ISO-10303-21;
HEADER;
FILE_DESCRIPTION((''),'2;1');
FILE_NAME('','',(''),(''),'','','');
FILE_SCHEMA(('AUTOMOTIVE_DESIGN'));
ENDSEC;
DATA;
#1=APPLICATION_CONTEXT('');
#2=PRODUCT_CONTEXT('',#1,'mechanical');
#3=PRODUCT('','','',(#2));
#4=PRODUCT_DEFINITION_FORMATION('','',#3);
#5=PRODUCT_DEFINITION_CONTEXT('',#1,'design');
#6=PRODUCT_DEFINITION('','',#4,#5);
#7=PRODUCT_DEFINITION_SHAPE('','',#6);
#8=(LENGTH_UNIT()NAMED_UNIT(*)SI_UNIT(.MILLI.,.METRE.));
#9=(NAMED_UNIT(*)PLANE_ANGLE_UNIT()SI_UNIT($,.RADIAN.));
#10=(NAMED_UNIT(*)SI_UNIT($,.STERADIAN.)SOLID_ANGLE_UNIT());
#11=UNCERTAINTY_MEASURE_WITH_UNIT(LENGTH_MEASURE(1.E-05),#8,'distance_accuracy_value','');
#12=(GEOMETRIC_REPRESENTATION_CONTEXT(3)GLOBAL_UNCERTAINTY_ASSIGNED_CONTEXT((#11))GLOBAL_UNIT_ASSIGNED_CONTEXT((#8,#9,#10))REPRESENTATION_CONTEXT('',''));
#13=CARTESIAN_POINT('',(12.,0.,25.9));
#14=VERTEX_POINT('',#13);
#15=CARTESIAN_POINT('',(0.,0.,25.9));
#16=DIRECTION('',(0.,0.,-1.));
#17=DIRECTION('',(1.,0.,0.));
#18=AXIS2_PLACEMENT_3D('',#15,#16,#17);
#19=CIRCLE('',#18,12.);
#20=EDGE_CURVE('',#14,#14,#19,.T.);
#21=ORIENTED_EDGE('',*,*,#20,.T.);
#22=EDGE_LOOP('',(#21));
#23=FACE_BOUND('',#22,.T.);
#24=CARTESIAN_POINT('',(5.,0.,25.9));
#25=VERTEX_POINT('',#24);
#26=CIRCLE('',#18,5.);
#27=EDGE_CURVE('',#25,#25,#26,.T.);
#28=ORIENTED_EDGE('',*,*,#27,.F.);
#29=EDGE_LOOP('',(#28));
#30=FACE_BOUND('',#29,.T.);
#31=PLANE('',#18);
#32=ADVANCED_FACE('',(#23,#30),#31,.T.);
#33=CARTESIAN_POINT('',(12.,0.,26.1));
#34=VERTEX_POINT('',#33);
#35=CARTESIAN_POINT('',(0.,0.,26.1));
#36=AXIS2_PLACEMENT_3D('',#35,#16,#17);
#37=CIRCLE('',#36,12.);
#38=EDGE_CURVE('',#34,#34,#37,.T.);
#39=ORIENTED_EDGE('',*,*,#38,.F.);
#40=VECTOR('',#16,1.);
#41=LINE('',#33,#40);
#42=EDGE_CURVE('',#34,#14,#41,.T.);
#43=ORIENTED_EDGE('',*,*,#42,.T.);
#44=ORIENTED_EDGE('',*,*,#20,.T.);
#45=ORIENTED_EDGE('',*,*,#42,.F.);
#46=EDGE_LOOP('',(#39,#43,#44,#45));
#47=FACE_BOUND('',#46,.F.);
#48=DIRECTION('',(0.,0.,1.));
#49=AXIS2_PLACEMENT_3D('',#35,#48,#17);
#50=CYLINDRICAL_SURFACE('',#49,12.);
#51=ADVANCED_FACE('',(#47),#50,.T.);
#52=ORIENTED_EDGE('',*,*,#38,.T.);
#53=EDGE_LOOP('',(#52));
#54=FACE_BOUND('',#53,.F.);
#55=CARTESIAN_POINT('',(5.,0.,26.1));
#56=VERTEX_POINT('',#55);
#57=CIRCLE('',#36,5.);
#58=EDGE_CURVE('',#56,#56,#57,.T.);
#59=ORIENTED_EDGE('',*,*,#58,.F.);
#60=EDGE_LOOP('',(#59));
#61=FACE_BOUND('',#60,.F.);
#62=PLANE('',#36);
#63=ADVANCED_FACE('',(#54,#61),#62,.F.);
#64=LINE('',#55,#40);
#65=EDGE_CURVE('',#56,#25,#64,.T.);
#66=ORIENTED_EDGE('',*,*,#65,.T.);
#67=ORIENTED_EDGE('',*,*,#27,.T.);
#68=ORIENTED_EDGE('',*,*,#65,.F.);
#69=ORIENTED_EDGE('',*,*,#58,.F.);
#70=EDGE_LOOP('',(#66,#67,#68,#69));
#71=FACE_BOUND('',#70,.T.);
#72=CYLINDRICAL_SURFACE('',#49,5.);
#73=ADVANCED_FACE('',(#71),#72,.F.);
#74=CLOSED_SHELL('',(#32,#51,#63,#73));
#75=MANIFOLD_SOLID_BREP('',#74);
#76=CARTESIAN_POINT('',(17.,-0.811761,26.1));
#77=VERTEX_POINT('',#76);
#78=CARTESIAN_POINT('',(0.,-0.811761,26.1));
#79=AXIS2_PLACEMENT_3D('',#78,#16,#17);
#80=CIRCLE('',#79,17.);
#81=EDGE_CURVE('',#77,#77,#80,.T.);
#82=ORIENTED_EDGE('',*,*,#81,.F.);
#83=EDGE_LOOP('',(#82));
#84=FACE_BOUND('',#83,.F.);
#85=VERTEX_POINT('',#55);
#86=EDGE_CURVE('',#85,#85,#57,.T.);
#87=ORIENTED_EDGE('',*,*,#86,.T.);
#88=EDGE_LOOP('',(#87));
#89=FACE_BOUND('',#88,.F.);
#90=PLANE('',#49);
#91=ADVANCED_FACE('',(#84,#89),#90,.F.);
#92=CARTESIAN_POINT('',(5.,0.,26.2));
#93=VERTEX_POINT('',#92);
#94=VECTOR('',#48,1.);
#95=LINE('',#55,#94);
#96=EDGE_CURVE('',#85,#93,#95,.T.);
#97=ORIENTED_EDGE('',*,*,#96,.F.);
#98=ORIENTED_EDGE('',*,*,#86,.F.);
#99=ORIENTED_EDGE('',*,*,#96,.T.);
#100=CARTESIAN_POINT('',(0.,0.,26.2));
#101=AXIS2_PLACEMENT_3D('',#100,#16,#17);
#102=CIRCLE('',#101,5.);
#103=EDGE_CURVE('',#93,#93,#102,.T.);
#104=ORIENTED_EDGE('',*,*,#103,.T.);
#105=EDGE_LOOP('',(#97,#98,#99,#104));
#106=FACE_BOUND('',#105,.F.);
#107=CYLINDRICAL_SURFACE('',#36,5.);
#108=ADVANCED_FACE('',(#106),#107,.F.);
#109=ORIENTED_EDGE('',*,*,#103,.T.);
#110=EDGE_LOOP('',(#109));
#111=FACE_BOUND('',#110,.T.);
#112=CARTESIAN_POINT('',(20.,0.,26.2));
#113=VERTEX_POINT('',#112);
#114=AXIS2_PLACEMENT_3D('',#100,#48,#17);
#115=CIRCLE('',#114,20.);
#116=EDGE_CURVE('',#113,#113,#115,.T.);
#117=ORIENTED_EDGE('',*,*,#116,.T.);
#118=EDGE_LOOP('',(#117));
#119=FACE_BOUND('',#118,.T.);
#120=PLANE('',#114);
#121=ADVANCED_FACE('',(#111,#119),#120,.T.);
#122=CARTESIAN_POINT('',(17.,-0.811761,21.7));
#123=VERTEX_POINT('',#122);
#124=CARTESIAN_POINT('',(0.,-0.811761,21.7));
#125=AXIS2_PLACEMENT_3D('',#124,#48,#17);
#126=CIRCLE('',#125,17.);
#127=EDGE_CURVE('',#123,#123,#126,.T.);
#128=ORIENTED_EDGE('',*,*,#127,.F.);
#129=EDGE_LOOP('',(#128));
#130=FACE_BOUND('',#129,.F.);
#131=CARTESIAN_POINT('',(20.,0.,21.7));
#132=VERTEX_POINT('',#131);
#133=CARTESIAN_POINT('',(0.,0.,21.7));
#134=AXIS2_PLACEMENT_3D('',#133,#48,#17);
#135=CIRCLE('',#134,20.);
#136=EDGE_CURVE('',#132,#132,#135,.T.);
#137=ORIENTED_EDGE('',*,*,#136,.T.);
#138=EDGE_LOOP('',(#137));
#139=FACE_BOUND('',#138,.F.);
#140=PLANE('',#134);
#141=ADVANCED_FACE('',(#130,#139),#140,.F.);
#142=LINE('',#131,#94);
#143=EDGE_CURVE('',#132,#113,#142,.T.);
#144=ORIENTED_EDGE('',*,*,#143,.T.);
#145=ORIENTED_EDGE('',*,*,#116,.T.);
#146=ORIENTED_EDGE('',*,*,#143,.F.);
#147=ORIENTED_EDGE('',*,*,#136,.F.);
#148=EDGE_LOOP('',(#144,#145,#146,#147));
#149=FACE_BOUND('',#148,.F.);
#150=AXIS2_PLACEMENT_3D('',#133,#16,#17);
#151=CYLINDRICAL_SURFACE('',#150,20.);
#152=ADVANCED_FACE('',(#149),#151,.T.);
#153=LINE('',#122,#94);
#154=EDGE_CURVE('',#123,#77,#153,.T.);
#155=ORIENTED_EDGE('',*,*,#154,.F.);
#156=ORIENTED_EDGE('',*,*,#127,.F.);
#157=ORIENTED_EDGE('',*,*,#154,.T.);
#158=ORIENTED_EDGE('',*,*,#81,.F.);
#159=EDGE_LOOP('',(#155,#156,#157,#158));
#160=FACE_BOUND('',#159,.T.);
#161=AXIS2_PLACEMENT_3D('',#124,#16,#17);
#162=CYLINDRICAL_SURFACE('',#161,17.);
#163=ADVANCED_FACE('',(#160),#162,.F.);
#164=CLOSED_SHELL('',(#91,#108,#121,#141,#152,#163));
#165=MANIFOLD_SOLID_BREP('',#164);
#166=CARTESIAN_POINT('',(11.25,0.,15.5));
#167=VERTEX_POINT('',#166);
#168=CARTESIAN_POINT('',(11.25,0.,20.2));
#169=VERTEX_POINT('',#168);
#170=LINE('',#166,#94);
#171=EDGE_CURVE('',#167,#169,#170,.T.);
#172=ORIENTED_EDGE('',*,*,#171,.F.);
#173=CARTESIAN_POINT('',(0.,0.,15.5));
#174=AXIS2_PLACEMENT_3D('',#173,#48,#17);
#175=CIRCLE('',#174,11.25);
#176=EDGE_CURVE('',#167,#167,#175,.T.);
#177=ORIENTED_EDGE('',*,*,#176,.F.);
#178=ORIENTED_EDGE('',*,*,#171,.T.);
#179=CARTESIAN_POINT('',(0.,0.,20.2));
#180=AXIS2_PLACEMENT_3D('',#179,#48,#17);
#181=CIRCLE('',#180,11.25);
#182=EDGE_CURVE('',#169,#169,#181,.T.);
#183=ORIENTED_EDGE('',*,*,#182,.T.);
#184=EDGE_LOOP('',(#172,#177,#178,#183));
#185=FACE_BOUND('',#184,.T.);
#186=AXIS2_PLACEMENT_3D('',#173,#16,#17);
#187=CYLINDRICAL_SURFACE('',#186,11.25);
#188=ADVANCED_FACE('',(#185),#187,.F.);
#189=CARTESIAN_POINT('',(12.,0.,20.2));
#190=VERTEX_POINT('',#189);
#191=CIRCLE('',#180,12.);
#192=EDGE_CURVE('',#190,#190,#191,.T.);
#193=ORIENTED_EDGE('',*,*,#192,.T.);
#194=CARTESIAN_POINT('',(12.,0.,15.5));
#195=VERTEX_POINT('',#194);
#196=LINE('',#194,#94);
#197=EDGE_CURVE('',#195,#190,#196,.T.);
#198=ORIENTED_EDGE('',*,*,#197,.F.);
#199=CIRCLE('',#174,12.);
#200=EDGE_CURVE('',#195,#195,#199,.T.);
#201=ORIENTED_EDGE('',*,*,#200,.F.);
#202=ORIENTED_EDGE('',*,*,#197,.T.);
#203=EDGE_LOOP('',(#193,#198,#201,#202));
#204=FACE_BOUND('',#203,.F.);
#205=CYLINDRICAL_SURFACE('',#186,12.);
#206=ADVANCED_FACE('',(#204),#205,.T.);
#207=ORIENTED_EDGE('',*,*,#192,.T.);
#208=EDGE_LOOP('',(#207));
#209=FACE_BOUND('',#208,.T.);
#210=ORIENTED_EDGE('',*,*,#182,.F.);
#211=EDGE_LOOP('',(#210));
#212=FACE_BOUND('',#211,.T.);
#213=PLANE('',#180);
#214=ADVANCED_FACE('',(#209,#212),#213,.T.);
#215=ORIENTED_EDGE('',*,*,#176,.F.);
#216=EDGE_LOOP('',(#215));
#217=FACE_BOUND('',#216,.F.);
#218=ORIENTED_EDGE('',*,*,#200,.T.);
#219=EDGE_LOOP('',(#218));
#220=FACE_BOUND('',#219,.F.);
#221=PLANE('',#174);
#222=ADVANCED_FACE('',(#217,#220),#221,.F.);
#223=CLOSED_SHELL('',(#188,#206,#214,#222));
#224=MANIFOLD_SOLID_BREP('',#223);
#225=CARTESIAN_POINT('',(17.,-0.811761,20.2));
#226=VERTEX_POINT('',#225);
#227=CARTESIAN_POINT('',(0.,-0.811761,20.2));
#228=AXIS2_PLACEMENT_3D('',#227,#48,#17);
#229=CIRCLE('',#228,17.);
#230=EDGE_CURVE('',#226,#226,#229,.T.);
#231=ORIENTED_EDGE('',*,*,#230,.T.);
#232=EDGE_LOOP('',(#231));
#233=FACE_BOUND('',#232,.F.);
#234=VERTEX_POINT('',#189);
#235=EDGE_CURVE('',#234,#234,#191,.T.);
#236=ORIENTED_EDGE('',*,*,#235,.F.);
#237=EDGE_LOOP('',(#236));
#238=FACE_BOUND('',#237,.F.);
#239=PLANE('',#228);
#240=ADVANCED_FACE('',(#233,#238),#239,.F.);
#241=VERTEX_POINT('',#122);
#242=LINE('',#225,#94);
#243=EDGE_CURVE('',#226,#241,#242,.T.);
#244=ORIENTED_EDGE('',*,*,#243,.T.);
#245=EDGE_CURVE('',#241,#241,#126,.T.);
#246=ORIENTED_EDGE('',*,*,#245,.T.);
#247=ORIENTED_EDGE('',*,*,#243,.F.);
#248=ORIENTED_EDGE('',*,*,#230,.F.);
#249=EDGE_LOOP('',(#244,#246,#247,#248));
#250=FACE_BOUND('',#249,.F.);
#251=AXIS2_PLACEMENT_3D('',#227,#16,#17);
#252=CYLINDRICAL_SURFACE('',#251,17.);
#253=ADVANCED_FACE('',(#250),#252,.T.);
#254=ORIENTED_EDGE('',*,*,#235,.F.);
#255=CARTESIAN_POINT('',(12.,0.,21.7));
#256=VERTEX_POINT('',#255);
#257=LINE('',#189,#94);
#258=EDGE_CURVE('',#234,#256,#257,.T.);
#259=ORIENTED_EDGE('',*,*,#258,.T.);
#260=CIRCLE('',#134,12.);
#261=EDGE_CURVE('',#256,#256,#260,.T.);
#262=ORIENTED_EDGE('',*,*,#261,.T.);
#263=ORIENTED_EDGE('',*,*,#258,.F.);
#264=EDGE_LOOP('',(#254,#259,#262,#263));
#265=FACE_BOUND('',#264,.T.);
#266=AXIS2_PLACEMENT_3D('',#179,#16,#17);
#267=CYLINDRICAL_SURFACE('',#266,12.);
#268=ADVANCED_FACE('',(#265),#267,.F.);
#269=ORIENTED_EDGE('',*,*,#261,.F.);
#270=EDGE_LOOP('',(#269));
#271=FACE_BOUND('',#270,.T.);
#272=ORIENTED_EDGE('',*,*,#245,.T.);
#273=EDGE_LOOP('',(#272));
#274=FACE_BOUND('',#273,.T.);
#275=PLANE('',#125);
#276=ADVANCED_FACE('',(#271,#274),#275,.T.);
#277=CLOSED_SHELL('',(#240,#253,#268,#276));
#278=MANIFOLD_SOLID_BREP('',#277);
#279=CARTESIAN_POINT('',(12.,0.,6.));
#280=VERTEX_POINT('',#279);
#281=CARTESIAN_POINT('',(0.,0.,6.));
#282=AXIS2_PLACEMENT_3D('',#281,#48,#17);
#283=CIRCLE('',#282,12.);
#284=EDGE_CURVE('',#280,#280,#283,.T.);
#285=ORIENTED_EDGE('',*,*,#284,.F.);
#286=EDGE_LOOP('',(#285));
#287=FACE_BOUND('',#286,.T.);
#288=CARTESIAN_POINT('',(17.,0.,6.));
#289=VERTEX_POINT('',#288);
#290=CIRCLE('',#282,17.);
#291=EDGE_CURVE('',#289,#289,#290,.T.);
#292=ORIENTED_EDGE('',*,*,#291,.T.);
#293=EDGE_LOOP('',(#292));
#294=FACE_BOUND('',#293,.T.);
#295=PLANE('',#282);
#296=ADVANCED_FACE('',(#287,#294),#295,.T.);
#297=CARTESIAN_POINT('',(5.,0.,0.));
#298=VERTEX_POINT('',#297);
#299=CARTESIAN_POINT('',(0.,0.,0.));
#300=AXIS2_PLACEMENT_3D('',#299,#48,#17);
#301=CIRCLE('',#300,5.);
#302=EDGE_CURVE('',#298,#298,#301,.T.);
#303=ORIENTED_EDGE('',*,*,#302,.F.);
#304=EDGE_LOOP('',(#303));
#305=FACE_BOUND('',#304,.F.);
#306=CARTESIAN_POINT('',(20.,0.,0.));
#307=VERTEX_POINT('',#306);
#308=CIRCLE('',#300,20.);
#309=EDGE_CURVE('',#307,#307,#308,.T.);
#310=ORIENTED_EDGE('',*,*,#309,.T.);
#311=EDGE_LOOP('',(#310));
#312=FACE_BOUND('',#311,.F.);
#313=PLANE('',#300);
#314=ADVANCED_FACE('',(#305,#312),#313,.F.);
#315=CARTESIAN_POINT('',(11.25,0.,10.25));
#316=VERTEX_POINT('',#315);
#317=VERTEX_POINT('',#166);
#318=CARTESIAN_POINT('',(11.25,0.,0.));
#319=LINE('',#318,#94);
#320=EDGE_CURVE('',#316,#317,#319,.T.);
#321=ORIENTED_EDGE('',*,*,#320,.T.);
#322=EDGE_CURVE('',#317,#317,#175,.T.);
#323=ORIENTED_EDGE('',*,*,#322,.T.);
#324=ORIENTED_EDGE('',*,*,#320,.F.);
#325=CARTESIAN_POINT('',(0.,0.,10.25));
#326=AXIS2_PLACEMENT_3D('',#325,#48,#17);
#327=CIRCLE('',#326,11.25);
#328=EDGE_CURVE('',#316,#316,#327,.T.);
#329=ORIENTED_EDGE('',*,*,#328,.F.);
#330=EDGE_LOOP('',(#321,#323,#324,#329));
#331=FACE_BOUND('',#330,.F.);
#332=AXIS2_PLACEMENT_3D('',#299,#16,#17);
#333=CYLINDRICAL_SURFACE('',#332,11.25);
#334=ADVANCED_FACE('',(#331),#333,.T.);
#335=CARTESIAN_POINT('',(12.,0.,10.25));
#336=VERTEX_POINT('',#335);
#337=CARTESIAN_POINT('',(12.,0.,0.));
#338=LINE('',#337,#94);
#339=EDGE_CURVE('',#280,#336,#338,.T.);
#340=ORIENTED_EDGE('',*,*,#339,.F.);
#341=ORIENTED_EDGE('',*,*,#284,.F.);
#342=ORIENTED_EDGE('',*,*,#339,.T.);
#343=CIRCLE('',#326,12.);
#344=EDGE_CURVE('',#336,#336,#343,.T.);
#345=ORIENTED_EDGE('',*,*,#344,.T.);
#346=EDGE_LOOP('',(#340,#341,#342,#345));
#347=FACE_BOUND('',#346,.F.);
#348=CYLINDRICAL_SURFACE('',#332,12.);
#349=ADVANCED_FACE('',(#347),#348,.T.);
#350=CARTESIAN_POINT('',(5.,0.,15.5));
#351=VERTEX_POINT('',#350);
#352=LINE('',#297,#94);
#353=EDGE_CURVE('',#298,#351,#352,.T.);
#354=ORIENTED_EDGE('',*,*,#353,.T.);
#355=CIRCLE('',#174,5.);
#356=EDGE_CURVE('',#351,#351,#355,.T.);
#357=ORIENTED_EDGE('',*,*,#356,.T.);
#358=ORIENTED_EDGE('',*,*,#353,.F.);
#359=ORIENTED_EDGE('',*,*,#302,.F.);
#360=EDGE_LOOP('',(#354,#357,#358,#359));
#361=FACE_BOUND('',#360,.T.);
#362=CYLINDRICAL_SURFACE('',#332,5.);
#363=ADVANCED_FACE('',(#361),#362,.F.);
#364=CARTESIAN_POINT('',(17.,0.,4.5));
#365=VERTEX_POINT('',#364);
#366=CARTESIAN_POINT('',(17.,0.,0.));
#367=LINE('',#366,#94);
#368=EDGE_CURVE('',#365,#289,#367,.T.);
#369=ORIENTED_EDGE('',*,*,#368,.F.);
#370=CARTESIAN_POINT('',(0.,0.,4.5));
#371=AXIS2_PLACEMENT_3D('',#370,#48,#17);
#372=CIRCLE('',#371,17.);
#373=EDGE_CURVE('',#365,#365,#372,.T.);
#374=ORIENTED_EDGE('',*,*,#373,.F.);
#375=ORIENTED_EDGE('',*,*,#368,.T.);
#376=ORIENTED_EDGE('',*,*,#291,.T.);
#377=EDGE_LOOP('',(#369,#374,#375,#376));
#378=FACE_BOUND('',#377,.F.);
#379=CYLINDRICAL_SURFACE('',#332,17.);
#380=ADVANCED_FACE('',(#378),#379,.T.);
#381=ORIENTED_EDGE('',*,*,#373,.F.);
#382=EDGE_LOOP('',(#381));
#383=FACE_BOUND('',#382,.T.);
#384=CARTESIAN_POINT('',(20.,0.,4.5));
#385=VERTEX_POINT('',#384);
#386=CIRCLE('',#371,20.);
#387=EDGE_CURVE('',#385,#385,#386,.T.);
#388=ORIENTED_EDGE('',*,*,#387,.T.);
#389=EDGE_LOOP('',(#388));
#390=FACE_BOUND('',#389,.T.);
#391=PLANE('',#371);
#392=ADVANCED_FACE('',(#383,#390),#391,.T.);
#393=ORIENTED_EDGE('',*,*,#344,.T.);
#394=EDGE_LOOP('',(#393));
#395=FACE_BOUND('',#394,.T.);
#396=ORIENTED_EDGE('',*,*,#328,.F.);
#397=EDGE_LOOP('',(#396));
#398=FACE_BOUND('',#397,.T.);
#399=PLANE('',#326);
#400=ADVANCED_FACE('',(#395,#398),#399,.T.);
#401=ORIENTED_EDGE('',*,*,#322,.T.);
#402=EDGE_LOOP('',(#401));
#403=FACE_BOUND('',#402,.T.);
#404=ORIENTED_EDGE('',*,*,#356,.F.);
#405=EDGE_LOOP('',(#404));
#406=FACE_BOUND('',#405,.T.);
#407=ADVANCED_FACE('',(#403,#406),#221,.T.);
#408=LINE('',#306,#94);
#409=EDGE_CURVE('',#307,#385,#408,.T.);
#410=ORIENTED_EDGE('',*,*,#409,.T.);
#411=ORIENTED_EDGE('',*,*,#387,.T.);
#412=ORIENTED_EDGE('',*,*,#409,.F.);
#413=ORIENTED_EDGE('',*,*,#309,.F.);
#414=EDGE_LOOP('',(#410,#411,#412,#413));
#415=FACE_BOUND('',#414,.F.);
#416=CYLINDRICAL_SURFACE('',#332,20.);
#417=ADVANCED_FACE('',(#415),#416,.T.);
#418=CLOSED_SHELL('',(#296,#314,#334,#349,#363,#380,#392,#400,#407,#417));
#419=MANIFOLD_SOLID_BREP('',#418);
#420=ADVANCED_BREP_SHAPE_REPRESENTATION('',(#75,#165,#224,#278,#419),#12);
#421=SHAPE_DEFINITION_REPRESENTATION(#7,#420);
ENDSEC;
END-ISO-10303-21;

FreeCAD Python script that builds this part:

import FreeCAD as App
import Part
import Sketcher
Q = App.Units.Quantity

doc = App.newDocument("Part")
body = doc.addObject("PartDesign::Body", "Body")
body.AllowCompound = True

sketch1 = body.newObject("Sketcher::SketchObject", "Sketch")
sketch1.AttachmentSupport = (doc.getObject("XY_Plane"), [""])
sketch1.MapMode = "FlatFace"
sketch1.addGeometry(Part.Circle(App.Vector(0, 0, 0), App.Vector(0, 0, 1), 20), False)
sketch1.addGeometry(Part.Circle(App.Vector(0, 0, 0), App.Vector(0, 0, 1), 17), False)
sketch1.addConstraint(Sketcher.Constraint("Coincident", 0, 3, -1, 1))
sketch1.addConstraint(Sketcher.Constraint("Coincident", 1, 3, -1, 1))
sketch1.addConstraint(Sketcher.Constraint("Diameter", 0, Q("40 mm")))
sketch1.addConstraint(Sketcher.Constraint("Diameter", 1, Q("34 mm")))
pad1 = body.newObject("PartDesign::Pad", "Pad")
pad1.Profile = sketch1
pad1.Length = 4.5

sketch2 = body.newObject("Sketcher::SketchObject", "Sketch001")
sketch2.AttachmentSupport = (doc.getObject("XY_Plane"), [""])
sketch2.MapMode = "FlatFace"
sketch2.addGeometry(Part.Circle(App.Vector(0, 0, 0), App.Vector(0, 0, 1), 17), False)
sketch2.addGeometry(Part.Circle(App.Vector(0, 0, 0), App.Vector(0, 0, 1), 12), False)
sketch2.addConstraint(Sketcher.Constraint("Coincident", 0, 3, -1, 1))
sketch2.addConstraint(Sketcher.Constraint("Coincident", 1, 3, -1, 1))
sketch2.addConstraint(Sketcher.Constraint("Diameter", 0, Q("34 mm")))
sketch2.addConstraint(Sketcher.Constraint("Diameter", 1, Q("24 mm")))
pad2 = body.newObject("PartDesign::Pad", "Pad001")
pad2.Profile = sketch2
pad2.Length = 6

sketch3 = body.newObject("Sketcher::SketchObject", "Sketch002")
sketch3.AttachmentSupport = (doc.getObject("XY_Plane"), [""])
sketch3.MapMode = "FlatFace"
sketch3.addGeometry(Part.Circle(App.Vector(0, 0, 0), App.Vector(0, 0, 1), 12), False)
sketch3.addGeometry(Part.Circle(App.Vector(0, 0, 0), App.Vector(0, 0, 1), 11.25), False)
sketch3.addConstraint(Sketcher.Constraint("Coincident", 0, 3, -1, 1))
sketch3.addConstraint(Sketcher.Constraint("Coincident", 1, 3, -1, 1))
sketch3.addConstraint(Sketcher.Constraint("Diameter", 0, Q("24 mm")))
sketch3.addConstraint(Sketcher.Constraint("Diameter", 1, Q("22.5 mm")))
pad3 = body.newObject("PartDesign::Pad", "Pad002")
pad3.Profile = sketch3
pad3.Length = 10.25

sketch4 = body.newObject("Sketcher::SketchObject", "Sketch003")
sketch4.AttachmentSupport = (doc.getObject("XY_Plane"), [""])
sketch4.MapMode = "FlatFace"
sketch4.addGeometry(Part.Circle(App.Vector(0, 0, 0), App.Vector(0, 0, 1), 11.25), False)
sketch4.addGeometry(Part.Circle(App.Vector(0, 0, 0), App.Vector(0, 0, 1), 5), False)
sketch4.addConstraint(Sketcher.Constraint("Coincident", 0, 3, -1, 1))
sketch4.addConstraint(Sketcher.Constraint("Coincident", 1, 3, -1, 1))
sketch4.addConstraint(Sketcher.Constraint("Diameter", 1, Q("10 mm")))
sketch4.addConstraint(Sketcher.Constraint("Diameter", 0, Q("22.5 mm")))
pad4 = body.newObject("PartDesign::Pad", "Pad003")
pad4.Profile = sketch4
pad4.Length = 15.5

sketch5 = body.newObject("Sketcher::SketchObject", "Sketch004")
sketch5.AttachmentSupport = (doc.getObject("XY_Plane"), [""])
sketch5.MapMode = "FlatFace"
sketch5.AttachmentOffset = App.Placement(App.Vector(0, 0, 15.5), App.Rotation())
sketch5.addGeometry(Part.Circle(App.Vector(0, 0, 0), App.Vector(0, 0, 1), 12), False)
sketch5.addGeometry(Part.Circle(App.Vector(0, 0, 0), App.Vector(0, 0, 1), 11.25), False)
sketch5.addConstraint(Sketcher.Constraint("Coincident", 0, 3, -1, 1))
sketch5.addConstraint(Sketcher.Constraint("Coincident", 1, 3, -1, 1))
sketch5.addConstraint(Sketcher.Constraint("Diameter", 0, Q("24 mm")))
sketch5.addConstraint(Sketcher.Constraint("Diameter", 1, Q("22.5 mm")))
pad5 = body.newObject("PartDesign::Pad", "Pad004")
pad5.Profile = sketch5
pad5.Length = 4.7
body2 = doc.addObject("PartDesign::Body", "Body001")

sketch6 = body2.newObject("Sketcher::SketchObject", "Sketch005")
sketch6.AttachmentSupport = (doc.getObject("XY_Plane001"), [""])
sketch6.MapMode = "FlatFace"
sketch6.AttachmentOffset = App.Placement(App.Vector(0, 0, 20.2), App.Rotation())
sketch6.addGeometry(Part.Circle(App.Vector(0, -0.811761, 0), App.Vector(0, 0, 1), 17), False)
sketch6.addGeometry(Part.Circle(App.Vector(0, 0, 0), App.Vector(0, 0, 1), 12), False)
sketch6.addConstraint(Sketcher.Constraint("Coincident", 1, 3, -1, 1))
sketch6.addConstraint(Sketcher.Constraint("PointOnObject", 0, 3, -2))
sketch6.addConstraint(Sketcher.Constraint("Diameter", 0, Q("34 mm")))
sketch6.addConstraint(Sketcher.Constraint("Diameter", 1, Q("24 mm")))
sketch6.addConstraint(Sketcher.Constraint("DistanceY", 0, 3, -1, 1, Q("0.811761 mm")))
pad6 = body2.newObject("PartDesign::Pad", "Pad005")
pad6.Profile = sketch6
pad6.Length = 1.5
body3 = doc.addObject("PartDesign::Body", "Body002")

sketch7 = body3.newObject("Sketcher::SketchObject", "Sketch006")
sketch7.AttachmentSupport = (doc.getObject("XY_Plane002"), [""])
sketch7.MapMode = "FlatFace"
sketch7.AttachmentOffset = App.Placement(App.Vector(0, 0, 21.7), App.Rotation())
sketch7.addGeometry(Part.Circle(App.Vector(0, 0, 0), App.Vector(0, 0, 1), 20), False)
sketch7.addGeometry(Part.Circle(App.Vector(0, -0.811761, 0), App.Vector(0, 0, 1), 17), False)
sketch7.addConstraint(Sketcher.Constraint("Coincident", 0, 3, -1, 1))
sketch7.addConstraint(Sketcher.Constraint("PointOnObject", 1, 3, -2))
sketch7.addConstraint(Sketcher.Constraint("Diameter", 0, Q("40 mm")))
sketch7.addConstraint(Sketcher.Constraint("Diameter", 1, Q("34 mm")))
sketch7.addConstraint(Sketcher.Constraint("DistanceY", 1, 3, -1, 1, Q("0.811761 mm")))
pad7 = body3.newObject("PartDesign::Pad", "Pad006")
pad7.Profile = sketch7
pad7.Length = 4.5

sketch8 = body3.newObject("Sketcher::SketchObject", "Sketch007")
sketch8.AttachmentSupport = (doc.getObject("XY_Plane002"), [""])
sketch8.MapMode = "FlatFace"
sketch8.AttachmentOffset = App.Placement(App.Vector(0, 0, 26.2), App.Rotation())
sketch8.addGeometry(Part.Circle(App.Vector(0, 0, 0), App.Vector(0, 0, 1), 20), False)
sketch8.addConstraint(Sketcher.Constraint("Coincident", 0, 3, -1, 1))
sketch8.addConstraint(Sketcher.Constraint("Diameter", 0, Q("40 mm")))
pad8 = body3.newObject("PartDesign::Pad", "Pad007")
pad8.Profile = sketch8
pad8.Length = 0.1
pad8.Reversed = True

sketch9 = body3.newObject("Sketcher::SketchObject", "Sketch008")
sketch9.AttachmentSupport = (doc.getObject("XY_Plane002"), [""])
sketch9.MapMode = "FlatFace"
sketch9.AttachmentOffset = App.Placement(App.Vector(0, 0, 26.1), App.Rotation())
sketch9.addGeometry(Part.Circle(App.Vector(0, 0, 0), App.Vector(0, 0, 1), 5), False)
sketch9.addConstraint(Sketcher.Constraint("Coincident", 0, 3, -1, 1))
sketch9.addConstraint(Sketcher.Constraint("Diameter", 0, Q("10 mm")))
pocket1 = body3.newObject("PartDesign::Pocket", "Pocket")
pocket1.Profile = sketch9
pocket1.Length = 79
pocket1.Reversed = True
body4 = doc.addObject("PartDesign::Body", "Body003")

sketch10 = body4.newObject("Sketcher::SketchObject", "Sketch009")
sketch10.AttachmentSupport = (doc.getObject("XY_Plane003"), [""])
sketch10.MapMode = "FlatFace"
sketch10.AttachmentOffset = App.Placement(App.Vector(0, 0, 26.1), App.Rotation())
sketch10.addGeometry(Part.Circle(App.Vector(0, 0, 0), App.Vector(0, 0, 1), 12), False)
sketch10.addGeometry(Part.Circle(App.Vector(0, 0, 0), App.Vector(0, 0, 1), 5), False)
sketch10.addConstraint(Sketcher.Constraint("Coincident", 0, 3, -1, 1))
sketch10.addConstraint(Sketcher.Constraint("Coincident", 1, 3, -1, 1))
sketch10.addConstraint(Sketcher.Constraint("Diameter", 0, Q("24 mm")))
sketch10.addConstraint(Sketcher.Constraint("Diameter", 1, Q("10 mm")))
pad9 = body4.newObject("PartDesign::Pad", "Pad008")
pad9.Profile = sketch10
pad9.Length = 0.2
pad9.Reversed = True

doc.recompute()
